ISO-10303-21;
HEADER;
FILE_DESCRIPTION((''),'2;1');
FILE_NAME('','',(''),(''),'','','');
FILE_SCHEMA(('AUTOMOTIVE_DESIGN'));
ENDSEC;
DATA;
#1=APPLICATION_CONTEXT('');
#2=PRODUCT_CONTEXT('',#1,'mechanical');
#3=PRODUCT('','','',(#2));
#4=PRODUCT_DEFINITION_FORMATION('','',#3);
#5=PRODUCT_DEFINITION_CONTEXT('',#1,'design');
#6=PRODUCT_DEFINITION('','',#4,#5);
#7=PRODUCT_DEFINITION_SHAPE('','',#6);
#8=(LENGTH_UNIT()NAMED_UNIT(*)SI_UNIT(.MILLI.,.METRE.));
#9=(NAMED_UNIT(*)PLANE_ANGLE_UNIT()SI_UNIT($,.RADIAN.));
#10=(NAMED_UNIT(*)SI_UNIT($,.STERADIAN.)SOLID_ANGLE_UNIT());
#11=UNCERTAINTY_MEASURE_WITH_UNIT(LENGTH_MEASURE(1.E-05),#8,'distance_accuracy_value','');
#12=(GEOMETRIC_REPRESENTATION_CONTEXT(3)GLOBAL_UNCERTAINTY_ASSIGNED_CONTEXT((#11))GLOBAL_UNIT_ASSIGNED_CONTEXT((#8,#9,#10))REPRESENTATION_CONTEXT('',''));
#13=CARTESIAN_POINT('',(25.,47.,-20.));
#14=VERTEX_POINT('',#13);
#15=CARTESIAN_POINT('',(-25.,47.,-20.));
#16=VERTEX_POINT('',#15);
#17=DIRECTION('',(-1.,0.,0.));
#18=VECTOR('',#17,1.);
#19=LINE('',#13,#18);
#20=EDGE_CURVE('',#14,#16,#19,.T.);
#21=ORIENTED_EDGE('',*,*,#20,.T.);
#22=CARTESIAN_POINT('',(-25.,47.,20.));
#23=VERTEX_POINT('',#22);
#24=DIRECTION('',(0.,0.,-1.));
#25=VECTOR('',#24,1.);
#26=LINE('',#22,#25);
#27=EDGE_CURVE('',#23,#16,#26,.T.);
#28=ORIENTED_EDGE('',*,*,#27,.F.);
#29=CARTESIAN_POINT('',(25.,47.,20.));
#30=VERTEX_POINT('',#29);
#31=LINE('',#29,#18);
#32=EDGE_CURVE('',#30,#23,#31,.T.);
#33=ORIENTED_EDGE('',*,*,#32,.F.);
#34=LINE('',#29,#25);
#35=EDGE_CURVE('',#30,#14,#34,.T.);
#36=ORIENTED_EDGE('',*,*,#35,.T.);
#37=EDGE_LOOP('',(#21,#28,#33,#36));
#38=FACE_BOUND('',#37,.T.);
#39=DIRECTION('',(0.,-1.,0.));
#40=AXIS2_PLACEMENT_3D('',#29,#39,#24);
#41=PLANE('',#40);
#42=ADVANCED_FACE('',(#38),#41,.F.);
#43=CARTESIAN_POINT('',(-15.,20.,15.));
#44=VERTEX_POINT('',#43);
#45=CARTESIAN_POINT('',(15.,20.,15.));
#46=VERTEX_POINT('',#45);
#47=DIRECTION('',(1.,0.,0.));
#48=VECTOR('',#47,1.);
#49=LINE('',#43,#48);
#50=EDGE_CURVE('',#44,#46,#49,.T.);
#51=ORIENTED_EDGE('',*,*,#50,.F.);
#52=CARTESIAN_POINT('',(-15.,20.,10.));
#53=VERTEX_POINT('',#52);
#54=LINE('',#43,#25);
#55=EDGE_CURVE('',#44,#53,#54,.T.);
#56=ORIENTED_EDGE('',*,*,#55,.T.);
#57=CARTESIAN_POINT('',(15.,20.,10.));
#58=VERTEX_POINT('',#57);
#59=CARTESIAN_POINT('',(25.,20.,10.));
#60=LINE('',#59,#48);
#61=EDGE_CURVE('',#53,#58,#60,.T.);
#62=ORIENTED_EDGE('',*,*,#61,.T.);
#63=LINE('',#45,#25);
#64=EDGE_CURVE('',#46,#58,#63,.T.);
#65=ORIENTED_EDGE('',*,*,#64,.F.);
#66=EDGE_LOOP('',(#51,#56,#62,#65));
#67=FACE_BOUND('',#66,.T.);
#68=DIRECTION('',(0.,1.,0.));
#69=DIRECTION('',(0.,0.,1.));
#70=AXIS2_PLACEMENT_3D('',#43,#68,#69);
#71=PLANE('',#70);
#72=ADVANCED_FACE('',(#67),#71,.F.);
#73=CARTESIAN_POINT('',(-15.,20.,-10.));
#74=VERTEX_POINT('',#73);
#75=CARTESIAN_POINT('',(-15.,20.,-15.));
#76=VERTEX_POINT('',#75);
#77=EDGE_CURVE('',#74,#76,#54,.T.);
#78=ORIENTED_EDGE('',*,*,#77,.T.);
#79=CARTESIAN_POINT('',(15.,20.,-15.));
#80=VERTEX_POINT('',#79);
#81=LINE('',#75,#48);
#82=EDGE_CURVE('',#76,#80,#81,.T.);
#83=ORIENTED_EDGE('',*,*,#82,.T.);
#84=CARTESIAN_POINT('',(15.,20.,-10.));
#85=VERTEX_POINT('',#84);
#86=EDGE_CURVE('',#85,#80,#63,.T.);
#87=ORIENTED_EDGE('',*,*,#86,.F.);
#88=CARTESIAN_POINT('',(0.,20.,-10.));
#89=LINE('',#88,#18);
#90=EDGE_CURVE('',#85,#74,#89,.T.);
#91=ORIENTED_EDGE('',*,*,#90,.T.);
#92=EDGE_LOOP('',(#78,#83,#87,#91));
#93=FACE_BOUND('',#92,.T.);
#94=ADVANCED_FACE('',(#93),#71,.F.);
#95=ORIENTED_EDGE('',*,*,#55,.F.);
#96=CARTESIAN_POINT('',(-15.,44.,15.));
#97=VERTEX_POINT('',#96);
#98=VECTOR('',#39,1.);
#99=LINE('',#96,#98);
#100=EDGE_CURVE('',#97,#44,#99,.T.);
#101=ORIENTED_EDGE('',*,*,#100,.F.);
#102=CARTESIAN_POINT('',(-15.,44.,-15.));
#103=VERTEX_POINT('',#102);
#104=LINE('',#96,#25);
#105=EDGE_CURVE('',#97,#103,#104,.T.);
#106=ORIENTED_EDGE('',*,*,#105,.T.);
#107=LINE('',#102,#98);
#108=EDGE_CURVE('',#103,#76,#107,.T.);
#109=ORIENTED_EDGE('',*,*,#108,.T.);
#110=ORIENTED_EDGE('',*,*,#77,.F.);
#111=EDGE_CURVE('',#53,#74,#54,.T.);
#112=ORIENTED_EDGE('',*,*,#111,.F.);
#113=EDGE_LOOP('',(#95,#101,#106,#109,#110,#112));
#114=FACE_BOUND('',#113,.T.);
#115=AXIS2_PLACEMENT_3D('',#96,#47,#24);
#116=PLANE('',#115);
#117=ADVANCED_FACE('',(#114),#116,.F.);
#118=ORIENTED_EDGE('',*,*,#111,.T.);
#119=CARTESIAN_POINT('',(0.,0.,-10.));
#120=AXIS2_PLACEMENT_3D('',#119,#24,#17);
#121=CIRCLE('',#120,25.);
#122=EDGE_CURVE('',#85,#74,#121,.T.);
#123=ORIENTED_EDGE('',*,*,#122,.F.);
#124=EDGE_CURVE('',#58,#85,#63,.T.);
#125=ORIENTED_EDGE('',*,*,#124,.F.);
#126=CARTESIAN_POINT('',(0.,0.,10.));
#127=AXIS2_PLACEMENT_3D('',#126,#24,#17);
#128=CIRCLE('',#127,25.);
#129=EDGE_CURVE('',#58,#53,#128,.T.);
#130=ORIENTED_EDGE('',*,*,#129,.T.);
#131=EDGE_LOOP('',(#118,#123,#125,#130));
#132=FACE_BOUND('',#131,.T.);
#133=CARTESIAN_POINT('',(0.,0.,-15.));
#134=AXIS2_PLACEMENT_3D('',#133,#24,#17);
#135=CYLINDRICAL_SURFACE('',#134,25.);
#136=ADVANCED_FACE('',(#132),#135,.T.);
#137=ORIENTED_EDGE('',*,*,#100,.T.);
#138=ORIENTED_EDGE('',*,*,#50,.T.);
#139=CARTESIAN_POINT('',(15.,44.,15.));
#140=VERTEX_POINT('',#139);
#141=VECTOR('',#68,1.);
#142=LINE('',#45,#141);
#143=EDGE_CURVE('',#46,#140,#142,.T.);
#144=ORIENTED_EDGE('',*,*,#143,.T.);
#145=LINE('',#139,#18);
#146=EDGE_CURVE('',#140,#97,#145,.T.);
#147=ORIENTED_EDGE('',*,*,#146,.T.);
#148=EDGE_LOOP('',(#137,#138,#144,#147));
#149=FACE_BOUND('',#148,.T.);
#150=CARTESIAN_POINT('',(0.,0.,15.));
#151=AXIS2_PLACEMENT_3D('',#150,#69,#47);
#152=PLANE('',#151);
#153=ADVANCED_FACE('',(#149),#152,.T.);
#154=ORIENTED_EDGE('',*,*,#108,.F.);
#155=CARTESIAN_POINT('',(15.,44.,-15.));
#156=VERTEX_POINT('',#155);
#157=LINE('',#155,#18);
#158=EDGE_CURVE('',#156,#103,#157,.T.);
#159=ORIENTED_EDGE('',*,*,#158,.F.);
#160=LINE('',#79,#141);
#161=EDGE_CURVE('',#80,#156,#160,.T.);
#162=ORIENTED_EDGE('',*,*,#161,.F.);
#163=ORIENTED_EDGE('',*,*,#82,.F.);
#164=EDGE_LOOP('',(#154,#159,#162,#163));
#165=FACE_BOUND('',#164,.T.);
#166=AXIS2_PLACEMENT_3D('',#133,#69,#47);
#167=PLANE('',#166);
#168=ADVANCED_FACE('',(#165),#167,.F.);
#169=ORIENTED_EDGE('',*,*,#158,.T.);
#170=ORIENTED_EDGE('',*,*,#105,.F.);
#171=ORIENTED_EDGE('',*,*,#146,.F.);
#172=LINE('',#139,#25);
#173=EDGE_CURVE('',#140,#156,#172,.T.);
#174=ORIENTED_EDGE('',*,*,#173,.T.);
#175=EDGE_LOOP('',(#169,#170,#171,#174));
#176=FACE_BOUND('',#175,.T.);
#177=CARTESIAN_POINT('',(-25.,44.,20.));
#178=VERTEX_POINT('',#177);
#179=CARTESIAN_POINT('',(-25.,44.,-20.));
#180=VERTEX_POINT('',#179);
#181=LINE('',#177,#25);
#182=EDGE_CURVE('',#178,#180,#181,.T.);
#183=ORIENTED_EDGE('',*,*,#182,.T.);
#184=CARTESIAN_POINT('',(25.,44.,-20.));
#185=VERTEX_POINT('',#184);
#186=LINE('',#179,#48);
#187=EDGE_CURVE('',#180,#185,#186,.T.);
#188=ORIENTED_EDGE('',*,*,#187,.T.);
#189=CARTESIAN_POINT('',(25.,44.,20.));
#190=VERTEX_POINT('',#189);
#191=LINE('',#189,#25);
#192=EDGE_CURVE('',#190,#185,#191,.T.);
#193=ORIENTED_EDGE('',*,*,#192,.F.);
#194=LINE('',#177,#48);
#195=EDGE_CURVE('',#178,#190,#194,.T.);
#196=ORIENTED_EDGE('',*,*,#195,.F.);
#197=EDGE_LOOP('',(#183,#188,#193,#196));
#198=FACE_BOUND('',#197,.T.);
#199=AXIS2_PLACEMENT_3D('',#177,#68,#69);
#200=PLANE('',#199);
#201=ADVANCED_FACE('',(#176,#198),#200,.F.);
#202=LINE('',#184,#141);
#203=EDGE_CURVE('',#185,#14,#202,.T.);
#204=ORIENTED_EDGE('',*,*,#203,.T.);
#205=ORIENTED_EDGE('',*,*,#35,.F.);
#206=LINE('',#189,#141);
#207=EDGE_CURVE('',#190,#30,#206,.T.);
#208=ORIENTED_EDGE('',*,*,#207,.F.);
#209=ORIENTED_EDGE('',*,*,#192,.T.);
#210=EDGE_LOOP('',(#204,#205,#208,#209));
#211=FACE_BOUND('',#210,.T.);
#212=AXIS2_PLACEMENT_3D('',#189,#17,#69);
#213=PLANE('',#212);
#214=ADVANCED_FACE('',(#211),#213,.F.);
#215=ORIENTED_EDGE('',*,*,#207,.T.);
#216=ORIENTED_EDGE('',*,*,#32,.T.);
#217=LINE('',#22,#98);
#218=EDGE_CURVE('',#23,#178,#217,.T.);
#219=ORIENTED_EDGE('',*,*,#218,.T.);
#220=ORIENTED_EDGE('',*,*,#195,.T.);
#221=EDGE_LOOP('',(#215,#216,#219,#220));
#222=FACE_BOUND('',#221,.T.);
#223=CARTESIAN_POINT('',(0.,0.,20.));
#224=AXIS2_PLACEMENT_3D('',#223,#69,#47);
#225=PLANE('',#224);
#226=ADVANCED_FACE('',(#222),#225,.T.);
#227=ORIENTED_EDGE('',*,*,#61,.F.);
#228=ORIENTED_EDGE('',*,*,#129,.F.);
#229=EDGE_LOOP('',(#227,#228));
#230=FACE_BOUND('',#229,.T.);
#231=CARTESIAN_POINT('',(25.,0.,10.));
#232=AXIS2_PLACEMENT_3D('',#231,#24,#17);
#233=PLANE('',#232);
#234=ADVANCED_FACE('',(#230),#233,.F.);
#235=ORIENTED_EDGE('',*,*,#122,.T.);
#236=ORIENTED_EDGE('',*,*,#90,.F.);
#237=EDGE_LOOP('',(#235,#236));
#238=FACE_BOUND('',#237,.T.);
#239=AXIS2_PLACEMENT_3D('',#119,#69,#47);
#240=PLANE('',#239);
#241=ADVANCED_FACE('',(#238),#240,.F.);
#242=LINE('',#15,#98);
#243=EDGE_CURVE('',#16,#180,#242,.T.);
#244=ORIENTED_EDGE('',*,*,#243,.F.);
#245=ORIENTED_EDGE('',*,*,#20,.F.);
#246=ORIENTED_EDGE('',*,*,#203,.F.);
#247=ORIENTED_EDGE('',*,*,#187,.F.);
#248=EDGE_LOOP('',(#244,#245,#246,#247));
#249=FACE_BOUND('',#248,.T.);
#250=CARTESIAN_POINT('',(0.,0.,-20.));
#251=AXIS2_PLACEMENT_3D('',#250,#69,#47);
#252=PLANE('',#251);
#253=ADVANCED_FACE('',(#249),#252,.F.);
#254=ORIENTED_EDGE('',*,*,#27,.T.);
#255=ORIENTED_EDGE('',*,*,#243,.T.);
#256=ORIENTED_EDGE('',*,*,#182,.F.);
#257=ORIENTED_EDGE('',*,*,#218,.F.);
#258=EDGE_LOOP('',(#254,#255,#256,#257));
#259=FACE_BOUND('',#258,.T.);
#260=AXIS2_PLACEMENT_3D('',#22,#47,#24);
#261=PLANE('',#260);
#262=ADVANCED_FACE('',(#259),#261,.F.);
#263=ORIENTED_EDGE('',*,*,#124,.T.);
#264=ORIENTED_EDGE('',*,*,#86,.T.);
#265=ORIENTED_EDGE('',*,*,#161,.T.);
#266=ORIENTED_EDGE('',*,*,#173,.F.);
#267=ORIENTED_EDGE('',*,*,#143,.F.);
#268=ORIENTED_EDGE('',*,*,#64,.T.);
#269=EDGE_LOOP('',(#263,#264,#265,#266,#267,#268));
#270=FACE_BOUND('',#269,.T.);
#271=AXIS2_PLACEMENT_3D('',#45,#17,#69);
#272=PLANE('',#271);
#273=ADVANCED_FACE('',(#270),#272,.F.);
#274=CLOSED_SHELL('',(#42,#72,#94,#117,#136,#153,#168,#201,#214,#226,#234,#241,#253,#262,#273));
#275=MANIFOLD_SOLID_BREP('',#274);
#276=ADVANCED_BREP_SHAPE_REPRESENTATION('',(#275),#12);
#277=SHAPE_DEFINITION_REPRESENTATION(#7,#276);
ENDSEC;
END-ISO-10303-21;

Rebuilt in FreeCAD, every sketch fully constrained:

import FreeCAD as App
import Part
import Sketcher


def add_polygon(sketch, points):
    """Adds a closed chain of lines whose ends are joined by coincident constraints."""
    first, n = sketch.GeometryCount, len(points)
    for a, b in zip(points, points[1:] + points[:1]):
        sketch.addGeometry(Part.LineSegment(App.Vector(*a, 0), App.Vector(*b, 0)), False)
    for i in range(n):
        sketch.addConstraint(Sketcher.Constraint("Coincident", first + i, 2, first + (i + 1) % n, 1))

doc = App.newDocument("Part")
body = doc.addObject("PartDesign::Body", "Body")

sketch1 = body.newObject("Sketcher::SketchObject", "Sketch")
sketch1.AttachmentSupport = (doc.getObject("XZ_Plane"), [""])
sketch1.MapMode = "FlatFace"
add_polygon(sketch1, [(0, -10), (0, 10), (25, 10), (25, -10)])
sketch1.addConstraint(Sketcher.Constraint("Vertical", 0))
sketch1.addConstraint(Sketcher.Constraint("Horizontal", 1))
sketch1.addConstraint(Sketcher.Constraint("Vertical", 2))
sketch1.addConstraint(Sketcher.Constraint("Horizontal", 3))
sketch1.addConstraint(Sketcher.Constraint("Symmetric", 0, 2, 3, 2, -1, 1))
sketch1.addConstraint(Sketcher.Constraint("DistanceX", 1, 1, 1, 2, 25.0))
sketch1.addConstraint(Sketcher.Constraint("DistanceY", 0, 1, 0, 2, 20.0))
revolution = body.newObject("PartDesign::Revolution", "Revolution")
revolution.Profile = sketch1
revolution.ReferenceAxis = (sketch1, ["V_Axis"])
revolution.Angle = 360

sketch2 = body.newObject("Sketcher::SketchObject", "Sketch001")
sketch2.AttachmentSupport = (doc.getObject("XY_Plane"), [""])
sketch2.MapMode = "FlatFace"
add_polygon(sketch2, [(-15, 44), (-15, 20), (15, 20), (15, 44)])
sketch2.addConstraint(Sketcher.Constraint("Vertical", 0))
sketch2.addConstraint(Sketcher.Constraint("Horizontal", 1))
sketch2.addConstraint(Sketcher.Constraint("Vertical", 2))
sketch2.addConstraint(Sketcher.Constraint("Horizontal", 3))
sketch2.addConstraint(Sketcher.Constraint("DistanceX", 1, 1, 1, 2, 30.0))
sketch2.addConstraint(Sketcher.Constraint("DistanceY", 0, 2, 0, 1, 24.0))
sketch2.addConstraint(Sketcher.Constraint("DistanceX", 0, 2, -1, 1, 15.0))
sketch2.addConstraint(Sketcher.Constraint("DistanceY", -1, 1, 0, 2, 20.0))
pad1 = body.newObject("PartDesign::Pad", "Pad")
pad1.Profile = sketch2
pad1.Length = 30
pad1.Midplane = True

sketch3 = body.newObject("Sketcher::SketchObject", "Sketch002")
sketch3.AttachmentSupport = (doc.getObject("XY_Plane"), [""])
sketch3.MapMode = "FlatFace"
add_polygon(sketch3, [(-25, 47), (-25, 44), (25, 44), (25, 47)])
sketch3.addConstraint(Sketcher.Constraint("Vertical", 0))
sketch3.addConstraint(Sketcher.Constraint("Horizontal", 1))
sketch3.addConstraint(Sketcher.Constraint("Vertical", 2))
sketch3.addConstraint(Sketcher.Constraint("Horizontal", 3))
sketch3.addConstraint(Sketcher.Constraint("DistanceX", 1, 1, 1, 2, 50.0))
sketch3.addConstraint(Sketcher.Constraint("DistanceY", 0, 2, 0, 1, 3.0))
sketch3.addConstraint(Sketcher.Constraint("DistanceX", 0, 2, -1, 1, 25.0))
sketch3.addConstraint(Sketcher.Constraint("DistanceY", -1, 1, 0, 2, 44.0))
pad2 = body.newObject("PartDesign::Pad", "Pad001")
pad2.Profile = sketch3
pad2.Length = 40
pad2.Midplane = True

doc.recompute()
